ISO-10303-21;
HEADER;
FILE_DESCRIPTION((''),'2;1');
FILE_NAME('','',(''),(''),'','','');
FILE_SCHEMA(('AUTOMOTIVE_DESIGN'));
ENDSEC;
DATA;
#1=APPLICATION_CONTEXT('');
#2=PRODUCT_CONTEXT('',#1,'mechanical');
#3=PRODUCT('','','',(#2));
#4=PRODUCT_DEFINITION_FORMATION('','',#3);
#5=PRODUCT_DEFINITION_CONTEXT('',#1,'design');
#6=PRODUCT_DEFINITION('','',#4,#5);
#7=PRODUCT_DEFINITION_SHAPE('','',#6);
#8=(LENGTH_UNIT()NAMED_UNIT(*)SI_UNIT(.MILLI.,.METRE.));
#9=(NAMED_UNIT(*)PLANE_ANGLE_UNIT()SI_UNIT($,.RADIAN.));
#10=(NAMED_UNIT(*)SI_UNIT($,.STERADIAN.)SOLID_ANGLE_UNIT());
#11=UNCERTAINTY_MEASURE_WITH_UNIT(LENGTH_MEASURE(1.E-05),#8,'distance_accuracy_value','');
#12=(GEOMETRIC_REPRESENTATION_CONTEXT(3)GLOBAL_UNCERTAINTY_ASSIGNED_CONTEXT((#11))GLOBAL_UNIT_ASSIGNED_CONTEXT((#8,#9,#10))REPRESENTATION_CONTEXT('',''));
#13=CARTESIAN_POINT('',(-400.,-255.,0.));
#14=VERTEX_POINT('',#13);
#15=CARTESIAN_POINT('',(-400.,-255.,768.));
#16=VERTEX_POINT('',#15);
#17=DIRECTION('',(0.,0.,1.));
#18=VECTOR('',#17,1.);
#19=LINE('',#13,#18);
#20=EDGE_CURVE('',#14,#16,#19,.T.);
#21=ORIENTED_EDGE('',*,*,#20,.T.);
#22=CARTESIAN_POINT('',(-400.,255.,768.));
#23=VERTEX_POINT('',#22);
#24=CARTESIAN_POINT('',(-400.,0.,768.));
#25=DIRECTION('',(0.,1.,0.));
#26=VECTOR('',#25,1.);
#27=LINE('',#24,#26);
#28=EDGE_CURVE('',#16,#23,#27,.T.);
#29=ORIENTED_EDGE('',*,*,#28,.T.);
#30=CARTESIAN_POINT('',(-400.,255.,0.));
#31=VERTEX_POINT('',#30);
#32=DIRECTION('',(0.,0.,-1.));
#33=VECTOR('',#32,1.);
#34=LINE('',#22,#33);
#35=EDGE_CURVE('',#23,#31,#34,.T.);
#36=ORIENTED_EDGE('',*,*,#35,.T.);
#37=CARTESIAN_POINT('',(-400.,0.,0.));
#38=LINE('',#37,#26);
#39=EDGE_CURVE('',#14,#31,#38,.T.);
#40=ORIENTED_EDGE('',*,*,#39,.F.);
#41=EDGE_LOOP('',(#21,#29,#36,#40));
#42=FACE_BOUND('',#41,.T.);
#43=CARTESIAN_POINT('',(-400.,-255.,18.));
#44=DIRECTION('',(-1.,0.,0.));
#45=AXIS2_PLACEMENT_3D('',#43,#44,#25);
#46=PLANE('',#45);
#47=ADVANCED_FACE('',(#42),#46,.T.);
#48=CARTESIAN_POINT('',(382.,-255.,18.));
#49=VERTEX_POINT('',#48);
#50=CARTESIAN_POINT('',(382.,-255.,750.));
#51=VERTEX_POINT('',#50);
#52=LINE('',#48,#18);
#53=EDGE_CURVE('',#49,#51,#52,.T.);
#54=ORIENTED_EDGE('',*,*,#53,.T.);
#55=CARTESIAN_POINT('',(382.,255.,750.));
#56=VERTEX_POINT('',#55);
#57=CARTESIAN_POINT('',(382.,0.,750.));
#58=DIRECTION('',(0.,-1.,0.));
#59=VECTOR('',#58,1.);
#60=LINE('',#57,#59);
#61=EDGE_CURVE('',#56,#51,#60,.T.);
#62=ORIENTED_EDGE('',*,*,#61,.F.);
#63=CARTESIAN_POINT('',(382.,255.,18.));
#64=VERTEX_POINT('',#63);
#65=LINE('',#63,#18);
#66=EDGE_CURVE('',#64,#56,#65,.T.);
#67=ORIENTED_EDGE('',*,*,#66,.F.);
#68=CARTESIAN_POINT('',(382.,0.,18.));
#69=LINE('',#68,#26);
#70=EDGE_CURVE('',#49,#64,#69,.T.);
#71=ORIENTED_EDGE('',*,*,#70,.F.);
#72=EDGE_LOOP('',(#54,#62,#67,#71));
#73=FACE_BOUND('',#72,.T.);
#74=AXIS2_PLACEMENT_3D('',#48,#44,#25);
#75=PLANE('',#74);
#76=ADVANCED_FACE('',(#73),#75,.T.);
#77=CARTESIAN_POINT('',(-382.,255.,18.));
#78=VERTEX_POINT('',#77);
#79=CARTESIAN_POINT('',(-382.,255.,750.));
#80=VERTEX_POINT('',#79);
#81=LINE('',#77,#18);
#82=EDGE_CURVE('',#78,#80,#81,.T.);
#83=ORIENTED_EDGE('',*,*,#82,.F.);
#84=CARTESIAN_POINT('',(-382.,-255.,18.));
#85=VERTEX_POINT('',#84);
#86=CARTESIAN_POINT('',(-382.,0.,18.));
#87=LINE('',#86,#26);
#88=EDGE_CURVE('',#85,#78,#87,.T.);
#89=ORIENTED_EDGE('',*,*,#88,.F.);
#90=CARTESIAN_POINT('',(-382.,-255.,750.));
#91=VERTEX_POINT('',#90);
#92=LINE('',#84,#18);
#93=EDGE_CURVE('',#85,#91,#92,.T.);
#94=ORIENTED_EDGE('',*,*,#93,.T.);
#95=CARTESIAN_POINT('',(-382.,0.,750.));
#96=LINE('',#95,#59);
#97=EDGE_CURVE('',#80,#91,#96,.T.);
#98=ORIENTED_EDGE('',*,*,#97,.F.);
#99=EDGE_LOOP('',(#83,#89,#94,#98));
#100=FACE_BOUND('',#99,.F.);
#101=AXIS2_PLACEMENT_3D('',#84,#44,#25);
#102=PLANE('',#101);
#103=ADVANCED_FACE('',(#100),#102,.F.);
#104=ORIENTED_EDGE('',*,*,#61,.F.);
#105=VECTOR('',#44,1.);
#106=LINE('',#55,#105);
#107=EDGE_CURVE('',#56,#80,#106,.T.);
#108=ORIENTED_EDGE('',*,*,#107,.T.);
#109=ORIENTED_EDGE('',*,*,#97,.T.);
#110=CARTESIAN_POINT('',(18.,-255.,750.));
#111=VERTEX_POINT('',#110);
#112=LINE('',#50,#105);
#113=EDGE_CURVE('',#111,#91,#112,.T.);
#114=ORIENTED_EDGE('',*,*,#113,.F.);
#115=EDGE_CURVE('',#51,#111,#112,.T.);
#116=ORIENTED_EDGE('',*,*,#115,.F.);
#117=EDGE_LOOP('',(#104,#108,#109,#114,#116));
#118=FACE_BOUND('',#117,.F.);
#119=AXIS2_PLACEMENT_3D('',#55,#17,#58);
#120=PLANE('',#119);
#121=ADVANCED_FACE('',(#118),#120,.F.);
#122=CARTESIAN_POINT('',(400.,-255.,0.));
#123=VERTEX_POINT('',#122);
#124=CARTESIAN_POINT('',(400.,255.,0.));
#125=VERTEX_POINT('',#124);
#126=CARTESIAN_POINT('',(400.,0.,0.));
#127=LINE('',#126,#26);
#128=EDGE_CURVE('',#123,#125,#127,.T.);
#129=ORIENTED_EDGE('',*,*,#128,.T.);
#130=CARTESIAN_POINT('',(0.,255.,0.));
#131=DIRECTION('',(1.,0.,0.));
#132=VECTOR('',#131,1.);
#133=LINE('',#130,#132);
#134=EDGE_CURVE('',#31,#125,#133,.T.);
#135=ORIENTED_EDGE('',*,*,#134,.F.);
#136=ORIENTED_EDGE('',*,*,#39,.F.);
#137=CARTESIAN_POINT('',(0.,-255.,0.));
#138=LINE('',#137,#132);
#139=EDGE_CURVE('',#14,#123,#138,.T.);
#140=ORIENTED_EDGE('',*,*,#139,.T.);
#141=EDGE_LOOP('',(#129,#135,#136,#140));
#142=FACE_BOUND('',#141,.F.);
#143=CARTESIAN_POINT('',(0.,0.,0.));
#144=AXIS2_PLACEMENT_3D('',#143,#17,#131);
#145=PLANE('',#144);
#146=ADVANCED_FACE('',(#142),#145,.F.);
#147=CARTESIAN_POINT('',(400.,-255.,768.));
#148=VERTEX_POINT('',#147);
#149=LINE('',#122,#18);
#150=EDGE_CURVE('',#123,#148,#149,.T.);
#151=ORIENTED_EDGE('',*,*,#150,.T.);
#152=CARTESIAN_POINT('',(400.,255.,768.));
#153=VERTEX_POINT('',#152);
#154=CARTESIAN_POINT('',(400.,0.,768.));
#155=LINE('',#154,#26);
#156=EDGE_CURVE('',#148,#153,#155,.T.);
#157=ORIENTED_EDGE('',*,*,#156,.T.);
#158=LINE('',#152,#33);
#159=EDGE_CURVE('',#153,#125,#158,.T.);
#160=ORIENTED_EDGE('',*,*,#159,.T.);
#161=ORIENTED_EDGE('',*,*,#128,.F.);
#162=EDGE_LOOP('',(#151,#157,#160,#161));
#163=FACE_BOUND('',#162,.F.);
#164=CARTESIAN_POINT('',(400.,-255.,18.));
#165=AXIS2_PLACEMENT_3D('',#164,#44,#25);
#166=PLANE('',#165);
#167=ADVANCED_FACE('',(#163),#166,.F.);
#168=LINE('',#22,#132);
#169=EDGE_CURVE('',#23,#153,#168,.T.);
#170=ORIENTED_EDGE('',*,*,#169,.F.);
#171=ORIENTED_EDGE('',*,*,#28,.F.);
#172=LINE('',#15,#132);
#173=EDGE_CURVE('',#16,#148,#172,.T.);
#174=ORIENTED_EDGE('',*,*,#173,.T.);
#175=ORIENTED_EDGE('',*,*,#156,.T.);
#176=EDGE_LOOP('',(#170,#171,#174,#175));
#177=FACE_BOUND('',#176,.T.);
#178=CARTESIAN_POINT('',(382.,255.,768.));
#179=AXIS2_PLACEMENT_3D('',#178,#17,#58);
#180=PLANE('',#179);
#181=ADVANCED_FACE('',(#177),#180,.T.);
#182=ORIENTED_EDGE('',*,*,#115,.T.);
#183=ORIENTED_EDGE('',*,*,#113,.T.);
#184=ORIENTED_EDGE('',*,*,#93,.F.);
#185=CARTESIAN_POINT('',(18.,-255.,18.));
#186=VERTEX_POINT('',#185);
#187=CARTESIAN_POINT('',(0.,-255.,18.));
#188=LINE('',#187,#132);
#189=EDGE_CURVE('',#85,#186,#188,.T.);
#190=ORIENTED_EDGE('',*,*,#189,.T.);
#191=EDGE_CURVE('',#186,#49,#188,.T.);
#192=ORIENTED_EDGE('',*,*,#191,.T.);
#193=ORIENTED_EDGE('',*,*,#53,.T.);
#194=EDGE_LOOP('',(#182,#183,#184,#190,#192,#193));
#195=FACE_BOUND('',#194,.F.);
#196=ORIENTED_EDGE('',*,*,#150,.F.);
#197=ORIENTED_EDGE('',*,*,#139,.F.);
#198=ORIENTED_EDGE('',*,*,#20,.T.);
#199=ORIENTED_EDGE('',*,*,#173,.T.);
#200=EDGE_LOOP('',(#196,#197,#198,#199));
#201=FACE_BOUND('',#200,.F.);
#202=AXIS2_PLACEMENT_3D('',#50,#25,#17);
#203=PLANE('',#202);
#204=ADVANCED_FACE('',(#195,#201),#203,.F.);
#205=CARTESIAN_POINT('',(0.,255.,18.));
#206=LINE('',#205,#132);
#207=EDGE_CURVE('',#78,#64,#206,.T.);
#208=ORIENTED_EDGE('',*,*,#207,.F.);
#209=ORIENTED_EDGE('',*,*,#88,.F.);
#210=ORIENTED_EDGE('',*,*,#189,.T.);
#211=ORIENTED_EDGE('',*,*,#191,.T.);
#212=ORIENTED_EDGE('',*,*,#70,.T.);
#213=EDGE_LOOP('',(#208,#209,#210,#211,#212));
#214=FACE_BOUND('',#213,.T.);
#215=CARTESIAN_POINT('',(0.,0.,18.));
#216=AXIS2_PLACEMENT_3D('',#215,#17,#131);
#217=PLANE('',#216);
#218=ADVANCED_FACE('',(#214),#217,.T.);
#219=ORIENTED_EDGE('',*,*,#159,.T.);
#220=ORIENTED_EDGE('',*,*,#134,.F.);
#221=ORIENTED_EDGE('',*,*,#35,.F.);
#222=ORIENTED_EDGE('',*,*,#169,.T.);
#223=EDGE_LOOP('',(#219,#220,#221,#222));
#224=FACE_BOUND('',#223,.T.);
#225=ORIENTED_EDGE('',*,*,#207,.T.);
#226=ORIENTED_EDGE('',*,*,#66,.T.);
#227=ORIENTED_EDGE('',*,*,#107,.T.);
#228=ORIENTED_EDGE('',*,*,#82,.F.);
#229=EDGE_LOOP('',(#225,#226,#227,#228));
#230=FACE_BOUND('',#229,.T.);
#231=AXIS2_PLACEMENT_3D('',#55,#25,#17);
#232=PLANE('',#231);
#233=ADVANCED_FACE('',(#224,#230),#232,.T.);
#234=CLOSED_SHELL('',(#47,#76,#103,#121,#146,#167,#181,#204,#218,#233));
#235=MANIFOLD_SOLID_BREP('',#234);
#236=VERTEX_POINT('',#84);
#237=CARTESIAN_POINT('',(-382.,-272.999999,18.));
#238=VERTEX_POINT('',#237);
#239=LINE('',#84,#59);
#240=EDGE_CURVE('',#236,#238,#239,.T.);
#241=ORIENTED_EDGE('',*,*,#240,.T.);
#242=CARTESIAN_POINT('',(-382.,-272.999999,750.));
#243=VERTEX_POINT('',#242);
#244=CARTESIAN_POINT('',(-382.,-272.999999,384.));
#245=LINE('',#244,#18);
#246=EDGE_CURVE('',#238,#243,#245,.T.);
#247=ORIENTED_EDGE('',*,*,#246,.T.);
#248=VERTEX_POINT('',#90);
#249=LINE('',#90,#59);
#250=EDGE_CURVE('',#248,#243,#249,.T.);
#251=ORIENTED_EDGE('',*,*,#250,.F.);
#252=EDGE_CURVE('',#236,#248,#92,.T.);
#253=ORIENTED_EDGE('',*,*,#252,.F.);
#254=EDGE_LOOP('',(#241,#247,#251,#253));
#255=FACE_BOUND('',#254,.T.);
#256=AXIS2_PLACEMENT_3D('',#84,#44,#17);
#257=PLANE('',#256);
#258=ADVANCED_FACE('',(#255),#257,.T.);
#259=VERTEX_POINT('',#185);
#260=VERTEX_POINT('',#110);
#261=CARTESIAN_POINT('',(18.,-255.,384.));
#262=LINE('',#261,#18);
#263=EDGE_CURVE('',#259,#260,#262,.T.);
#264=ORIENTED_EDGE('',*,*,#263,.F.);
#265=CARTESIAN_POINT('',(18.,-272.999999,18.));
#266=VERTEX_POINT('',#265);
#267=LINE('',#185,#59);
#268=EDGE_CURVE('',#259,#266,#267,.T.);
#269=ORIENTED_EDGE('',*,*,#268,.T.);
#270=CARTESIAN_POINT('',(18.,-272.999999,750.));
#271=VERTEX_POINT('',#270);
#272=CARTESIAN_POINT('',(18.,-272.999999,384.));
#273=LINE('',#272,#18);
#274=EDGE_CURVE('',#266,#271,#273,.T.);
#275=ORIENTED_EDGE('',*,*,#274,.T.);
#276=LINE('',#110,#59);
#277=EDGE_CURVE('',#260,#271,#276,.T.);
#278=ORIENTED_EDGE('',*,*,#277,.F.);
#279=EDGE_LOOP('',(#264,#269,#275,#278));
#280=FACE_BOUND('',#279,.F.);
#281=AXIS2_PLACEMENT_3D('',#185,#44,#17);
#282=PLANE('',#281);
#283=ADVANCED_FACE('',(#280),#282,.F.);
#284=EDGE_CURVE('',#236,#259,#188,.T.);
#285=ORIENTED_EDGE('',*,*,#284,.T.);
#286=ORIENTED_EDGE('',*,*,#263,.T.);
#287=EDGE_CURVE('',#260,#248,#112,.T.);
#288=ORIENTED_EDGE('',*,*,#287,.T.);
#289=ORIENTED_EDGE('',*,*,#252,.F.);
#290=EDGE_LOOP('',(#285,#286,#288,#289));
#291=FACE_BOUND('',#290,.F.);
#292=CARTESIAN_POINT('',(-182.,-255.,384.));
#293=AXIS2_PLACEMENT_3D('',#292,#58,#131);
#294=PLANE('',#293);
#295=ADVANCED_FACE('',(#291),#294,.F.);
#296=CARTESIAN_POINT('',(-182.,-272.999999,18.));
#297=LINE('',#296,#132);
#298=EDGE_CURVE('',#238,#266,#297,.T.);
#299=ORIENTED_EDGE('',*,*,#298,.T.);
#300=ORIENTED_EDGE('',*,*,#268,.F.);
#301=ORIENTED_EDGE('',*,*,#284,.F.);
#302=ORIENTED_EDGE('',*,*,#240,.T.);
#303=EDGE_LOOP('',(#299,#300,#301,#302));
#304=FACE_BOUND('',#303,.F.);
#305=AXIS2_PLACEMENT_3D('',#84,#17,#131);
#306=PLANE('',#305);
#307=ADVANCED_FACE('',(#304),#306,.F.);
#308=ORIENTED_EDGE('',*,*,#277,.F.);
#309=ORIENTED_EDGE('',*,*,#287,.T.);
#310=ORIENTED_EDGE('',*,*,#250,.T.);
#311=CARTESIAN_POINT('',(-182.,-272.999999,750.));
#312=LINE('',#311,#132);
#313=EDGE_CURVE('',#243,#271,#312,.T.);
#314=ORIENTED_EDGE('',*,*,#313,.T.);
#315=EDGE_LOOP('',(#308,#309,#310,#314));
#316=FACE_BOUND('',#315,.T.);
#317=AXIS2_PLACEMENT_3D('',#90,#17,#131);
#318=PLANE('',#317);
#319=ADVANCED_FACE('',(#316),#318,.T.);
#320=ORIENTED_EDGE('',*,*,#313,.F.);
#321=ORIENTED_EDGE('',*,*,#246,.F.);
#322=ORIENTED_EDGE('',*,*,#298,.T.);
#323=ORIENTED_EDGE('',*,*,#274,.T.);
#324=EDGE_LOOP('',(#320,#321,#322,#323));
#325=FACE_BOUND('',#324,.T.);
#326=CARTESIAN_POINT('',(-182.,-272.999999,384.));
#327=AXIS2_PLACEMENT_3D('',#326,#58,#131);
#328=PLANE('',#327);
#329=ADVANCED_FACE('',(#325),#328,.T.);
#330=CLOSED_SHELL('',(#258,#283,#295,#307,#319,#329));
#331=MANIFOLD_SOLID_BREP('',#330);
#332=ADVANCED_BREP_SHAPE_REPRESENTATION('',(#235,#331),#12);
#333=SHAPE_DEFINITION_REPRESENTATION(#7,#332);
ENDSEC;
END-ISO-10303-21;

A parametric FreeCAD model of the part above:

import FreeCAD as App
import Part
import Sketcher

V = App.Vector

doc = App.newDocument("Part")
body = doc.addObject("PartDesign::Body", "Body")
body.AllowCompound = True

sketch1 = doc.addObject("Sketcher::SketchObject", "Sketch")
body.addObject(sketch1)
sketch1.AttachmentSupport = (doc.XY_Plane, [""])
sketch1.MapMode = "FlatFace"
sketch1.addGeometry(Part.LineSegment(V(-400, 255, 0), V(-400, -255, 0)), False)
sketch1.addGeometry(Part.LineSegment(V(-400, -255, 0), V(400, -255, 0)), False)
sketch1.addGeometry(Part.LineSegment(V(400, -255, 0), V(400, 255, 0)), False)
sketch1.addGeometry(Part.LineSegment(V(400, 255, 0), V(-400, 255, 0)), False)
sketch1.addConstraint(Sketcher.Constraint("Coincident", 0, 2, 1, 1))
sketch1.addConstraint(Sketcher.Constraint("Coincident", 1, 2, 2, 1))
sketch1.addConstraint(Sketcher.Constraint("Coincident", 2, 2, 3, 1))
sketch1.addConstraint(Sketcher.Constraint("Coincident", 3, 2, 0, 1))
sketch1.addConstraint(Sketcher.Constraint("Vertical", 0))
sketch1.addConstraint(Sketcher.Constraint("Horizontal", 1))
sketch1.addConstraint(Sketcher.Constraint("Vertical", 2))
sketch1.addConstraint(Sketcher.Constraint("Horizontal", 3))
sketch1.addConstraint(Sketcher.Constraint("Symmetric", 0, 2, 2, 2, -1, 1))
sketch1.addConstraint(Sketcher.Constraint("DistanceX", 1, 1, 1, 2, 800.0))
sketch1.addConstraint(Sketcher.Constraint("DistanceY", 0, 2, 0, 1, 510.0))
pad1 = doc.addObject("PartDesign::Pad", "Pad")
body.addObject(pad1)
pad1.Profile = sketch1
pad1.Length = 18

sketch2 = doc.addObject("Sketcher::SketchObject", "Sketch001")
body.addObject(sketch2)
sketch2.AttachmentSupport = (doc.XY_Plane, [""])
sketch2.MapMode = "FlatFace"
sketch2.AttachmentOffset = App.Placement(V(0, 0, 18), App.Rotation())
sketch2.addGeometry(Part.LineSegment(V(-400, 255, 0), V(-400, -255, 0)), False)
sketch2.addGeometry(Part.LineSegment(V(-400, -255, 0), V(-382, -255, 0)), False)
sketch2.addGeometry(Part.LineSegment(V(-382, -255, 0), V(-382, 255, 0)), False)
sketch2.addGeometry(Part.LineSegment(V(-382, 255, 0), V(-400, 255, 0)), False)
sketch2.addConstraint(Sketcher.Constraint("Coincident", 0, 2, 1, 1))
sketch2.addConstraint(Sketcher.Constraint("Coincident", 1, 2, 2, 1))
sketch2.addConstraint(Sketcher.Constraint("Coincident", 2, 2, 3, 1))
sketch2.addConstraint(Sketcher.Constraint("Coincident", 3, 2, 0, 1))
sketch2.addConstraint(Sketcher.Constraint("Vertical", 0))
sketch2.addConstraint(Sketcher.Constraint("Horizontal", 1))
sketch2.addConstraint(Sketcher.Constraint("Vertical", 2))
sketch2.addConstraint(Sketcher.Constraint("Horizontal", 3))
sketch2.addConstraint(Sketcher.Constraint("DistanceX", 1, 1, 1, 2, 18.0))
sketch2.addConstraint(Sketcher.Constraint("DistanceY", 0, 2, 0, 1, 510.0))
sketch2.addConstraint(Sketcher.Constraint("DistanceX", 0, 2, -1, 1, 400.0))
sketch2.addConstraint(Sketcher.Constraint("DistanceY", 0, 2, -1, 1, 255.0))
pad2 = doc.addObject("PartDesign::Pad", "Pad001")
body.addObject(pad2)
pad2.Profile = sketch2
pad2.Length = 750

sketch3 = doc.addObject("Sketcher::SketchObject", "Sketch002")
body.addObject(sketch3)
sketch3.AttachmentSupport = (doc.XY_Plane, [""])
sketch3.MapMode = "FlatFace"
sketch3.AttachmentOffset = App.Placement(V(0, 0, 18), App.Rotation())
sketch3.addGeometry(Part.LineSegment(V(382, 255, 0), V(382, -255, 0)), False)
sketch3.addGeometry(Part.LineSegment(V(382, -255, 0), V(400, -255, 0)), False)
sketch3.addGeometry(Part.LineSegment(V(400, -255, 0), V(400, 255, 0)), False)
sketch3.addGeometry(Part.LineSegment(V(400, 255, 0), V(382, 255, 0)), False)
sketch3.addConstraint(Sketcher.Constraint("Coincident", 0, 2, 1, 1))
sketch3.addConstraint(Sketcher.Constraint("Coincident", 1, 2, 2, 1))
sketch3.addConstraint(Sketcher.Constraint("Coincident", 2, 2, 3, 1))
sketch3.addConstraint(Sketcher.Constraint("Coincident", 3, 2, 0, 1))
sketch3.addConstraint(Sketcher.Constraint("Vertical", 0))
sketch3.addConstraint(Sketcher.Constraint("Horizontal", 1))
sketch3.addConstraint(Sketcher.Constraint("Vertical", 2))
sketch3.addConstraint(Sketcher.Constraint("Horizontal", 3))
sketch3.addConstraint(Sketcher.Constraint("DistanceX", 1, 1, 1, 2, 18.0))
sketch3.addConstraint(Sketcher.Constraint("DistanceY", 0, 2, 0, 1, 510.0))
sketch3.addConstraint(Sketcher.Constraint("DistanceX", -1, 1, 0, 2, 382.0))
sketch3.addConstraint(Sketcher.Constraint("DistanceY", 0, 2, -1, 1, 255.0))
pad3 = doc.addObject("PartDesign::Pad", "Pad002")
body.addObject(pad3)
pad3.Profile = sketch3
pad3.Length = 750

sketch4 = doc.addObject("Sketcher::SketchObject", "Sketch003")
body.addObject(sketch4)
sketch4.AttachmentSupport = (doc.YZ_Plane, [""])
sketch4.MapMode = "FlatFace"
sketch4.AttachmentOffset = App.Placement(V(0, 0, 382), App.Rotation())
sketch4.addGeometry(Part.LineSegment(V(255, 768, 0), V(255, 750, 0)), False)
sketch4.addGeometry(Part.LineSegment(V(255, 750, 0), V(-255, 750, 0)), False)
sketch4.addGeometry(Part.LineSegment(V(-255, 750, 0), V(-255, 768, 0)), False)
sketch4.addGeometry(Part.LineSegment(V(-255, 768, 0), V(255, 768, 0)), False)
sketch4.addConstraint(Sketcher.Constraint("Coincident", 0, 2, 1, 1))
sketch4.addConstraint(Sketcher.Constraint("Coincident", 1, 2, 2, 1))
sketch4.addConstraint(Sketcher.Constraint("Coincident", 2, 2, 3, 1))
sketch4.addConstraint(Sketcher.Constraint("Coincident", 3, 2, 0, 1))
sketch4.addConstraint(Sketcher.Constraint("Vertical", 0))
sketch4.addConstraint(Sketcher.Constraint("Horizontal", 1))
sketch4.addConstraint(Sketcher.Constraint("Vertical", 2))
sketch4.addConstraint(Sketcher.Constraint("Horizontal", 3))
sketch4.addConstraint(Sketcher.Constraint("DistanceX", 1, 2, 1, 1, 510.0))
sketch4.addConstraint(Sketcher.Constraint("DistanceY", 0, 2, 0, 1, 18.0))
sketch4.addConstraint(Sketcher.Constraint("DistanceX", -1, 1, 0, 2, 255.0))
sketch4.addConstraint(Sketcher.Constraint("DistanceY", -1, 1, 0, 2, 750.0))
pad4 = doc.addObject("PartDesign::Pad", "Pad003")
body.addObject(pad4)
pad4.Profile = sketch4
pad4.Length = 764
pad4.Reversed = True

sketch5 = doc.addObject("Sketcher::SketchObject", "Sketch004")
body.addObject(sketch5)
sketch5.AttachmentSupport = (doc.XZ_Plane, [""])
sketch5.MapMode = "FlatFace"
sketch5.AttachmentOffset = App.Placement(V(0, 0, 255), App.Rotation())
sketch5.addGeometry(Part.LineSegment(V(-382, 750, 0), V(-382, 18, 0)), False)
sketch5.addGeometry(Part.LineSegment(V(-382, 18, 0), V(18, 18, 0)), False)
sketch5.addGeometry(Part.LineSegment(V(18, 18, 0), V(18, 750, 0)), False)
sketch5.addGeometry(Part.LineSegment(V(18, 750, 0), V(-382, 750, 0)), False)
sketch5.addConstraint(Sketcher.Constraint("Coincident", 0, 2, 1, 1))
sketch5.addConstraint(Sketcher.Constraint("Coincident", 1, 2, 2, 1))
sketch5.addConstraint(Sketcher.Constraint("Coincident", 2, 2, 3, 1))
sketch5.addConstraint(Sketcher.Constraint("Coincident", 3, 2, 0, 1))
sketch5.addConstraint(Sketcher.Constraint("Vertical", 0))
sketch5.addConstraint(Sketcher.Constraint("Horizontal", 1))
sketch5.addConstraint(Sketcher.Constraint("Vertical", 2))
sketch5.addConstraint(Sketcher.Constraint("Horizontal", 3))
sketch5.addConstraint(Sketcher.Constraint("DistanceX", 1, 1, 1, 2, 400.0))
sketch5.addConstraint(Sketcher.Constraint("DistanceY", 0, 2, 0, 1, 732.0))
sketch5.addConstraint(Sketcher.Constraint("DistanceX", 0, 2, -1, 1, 382.0))
sketch5.addConstraint(Sketcher.Constraint("DistanceY", -1, 1, 0, 2, 18.0))
pad5 = doc.addObject("PartDesign::Pad", "Pad004")
body.addObject(pad5)
pad5.Profile = sketch5
pad5.Length = 17.999999

doc.recompute()
